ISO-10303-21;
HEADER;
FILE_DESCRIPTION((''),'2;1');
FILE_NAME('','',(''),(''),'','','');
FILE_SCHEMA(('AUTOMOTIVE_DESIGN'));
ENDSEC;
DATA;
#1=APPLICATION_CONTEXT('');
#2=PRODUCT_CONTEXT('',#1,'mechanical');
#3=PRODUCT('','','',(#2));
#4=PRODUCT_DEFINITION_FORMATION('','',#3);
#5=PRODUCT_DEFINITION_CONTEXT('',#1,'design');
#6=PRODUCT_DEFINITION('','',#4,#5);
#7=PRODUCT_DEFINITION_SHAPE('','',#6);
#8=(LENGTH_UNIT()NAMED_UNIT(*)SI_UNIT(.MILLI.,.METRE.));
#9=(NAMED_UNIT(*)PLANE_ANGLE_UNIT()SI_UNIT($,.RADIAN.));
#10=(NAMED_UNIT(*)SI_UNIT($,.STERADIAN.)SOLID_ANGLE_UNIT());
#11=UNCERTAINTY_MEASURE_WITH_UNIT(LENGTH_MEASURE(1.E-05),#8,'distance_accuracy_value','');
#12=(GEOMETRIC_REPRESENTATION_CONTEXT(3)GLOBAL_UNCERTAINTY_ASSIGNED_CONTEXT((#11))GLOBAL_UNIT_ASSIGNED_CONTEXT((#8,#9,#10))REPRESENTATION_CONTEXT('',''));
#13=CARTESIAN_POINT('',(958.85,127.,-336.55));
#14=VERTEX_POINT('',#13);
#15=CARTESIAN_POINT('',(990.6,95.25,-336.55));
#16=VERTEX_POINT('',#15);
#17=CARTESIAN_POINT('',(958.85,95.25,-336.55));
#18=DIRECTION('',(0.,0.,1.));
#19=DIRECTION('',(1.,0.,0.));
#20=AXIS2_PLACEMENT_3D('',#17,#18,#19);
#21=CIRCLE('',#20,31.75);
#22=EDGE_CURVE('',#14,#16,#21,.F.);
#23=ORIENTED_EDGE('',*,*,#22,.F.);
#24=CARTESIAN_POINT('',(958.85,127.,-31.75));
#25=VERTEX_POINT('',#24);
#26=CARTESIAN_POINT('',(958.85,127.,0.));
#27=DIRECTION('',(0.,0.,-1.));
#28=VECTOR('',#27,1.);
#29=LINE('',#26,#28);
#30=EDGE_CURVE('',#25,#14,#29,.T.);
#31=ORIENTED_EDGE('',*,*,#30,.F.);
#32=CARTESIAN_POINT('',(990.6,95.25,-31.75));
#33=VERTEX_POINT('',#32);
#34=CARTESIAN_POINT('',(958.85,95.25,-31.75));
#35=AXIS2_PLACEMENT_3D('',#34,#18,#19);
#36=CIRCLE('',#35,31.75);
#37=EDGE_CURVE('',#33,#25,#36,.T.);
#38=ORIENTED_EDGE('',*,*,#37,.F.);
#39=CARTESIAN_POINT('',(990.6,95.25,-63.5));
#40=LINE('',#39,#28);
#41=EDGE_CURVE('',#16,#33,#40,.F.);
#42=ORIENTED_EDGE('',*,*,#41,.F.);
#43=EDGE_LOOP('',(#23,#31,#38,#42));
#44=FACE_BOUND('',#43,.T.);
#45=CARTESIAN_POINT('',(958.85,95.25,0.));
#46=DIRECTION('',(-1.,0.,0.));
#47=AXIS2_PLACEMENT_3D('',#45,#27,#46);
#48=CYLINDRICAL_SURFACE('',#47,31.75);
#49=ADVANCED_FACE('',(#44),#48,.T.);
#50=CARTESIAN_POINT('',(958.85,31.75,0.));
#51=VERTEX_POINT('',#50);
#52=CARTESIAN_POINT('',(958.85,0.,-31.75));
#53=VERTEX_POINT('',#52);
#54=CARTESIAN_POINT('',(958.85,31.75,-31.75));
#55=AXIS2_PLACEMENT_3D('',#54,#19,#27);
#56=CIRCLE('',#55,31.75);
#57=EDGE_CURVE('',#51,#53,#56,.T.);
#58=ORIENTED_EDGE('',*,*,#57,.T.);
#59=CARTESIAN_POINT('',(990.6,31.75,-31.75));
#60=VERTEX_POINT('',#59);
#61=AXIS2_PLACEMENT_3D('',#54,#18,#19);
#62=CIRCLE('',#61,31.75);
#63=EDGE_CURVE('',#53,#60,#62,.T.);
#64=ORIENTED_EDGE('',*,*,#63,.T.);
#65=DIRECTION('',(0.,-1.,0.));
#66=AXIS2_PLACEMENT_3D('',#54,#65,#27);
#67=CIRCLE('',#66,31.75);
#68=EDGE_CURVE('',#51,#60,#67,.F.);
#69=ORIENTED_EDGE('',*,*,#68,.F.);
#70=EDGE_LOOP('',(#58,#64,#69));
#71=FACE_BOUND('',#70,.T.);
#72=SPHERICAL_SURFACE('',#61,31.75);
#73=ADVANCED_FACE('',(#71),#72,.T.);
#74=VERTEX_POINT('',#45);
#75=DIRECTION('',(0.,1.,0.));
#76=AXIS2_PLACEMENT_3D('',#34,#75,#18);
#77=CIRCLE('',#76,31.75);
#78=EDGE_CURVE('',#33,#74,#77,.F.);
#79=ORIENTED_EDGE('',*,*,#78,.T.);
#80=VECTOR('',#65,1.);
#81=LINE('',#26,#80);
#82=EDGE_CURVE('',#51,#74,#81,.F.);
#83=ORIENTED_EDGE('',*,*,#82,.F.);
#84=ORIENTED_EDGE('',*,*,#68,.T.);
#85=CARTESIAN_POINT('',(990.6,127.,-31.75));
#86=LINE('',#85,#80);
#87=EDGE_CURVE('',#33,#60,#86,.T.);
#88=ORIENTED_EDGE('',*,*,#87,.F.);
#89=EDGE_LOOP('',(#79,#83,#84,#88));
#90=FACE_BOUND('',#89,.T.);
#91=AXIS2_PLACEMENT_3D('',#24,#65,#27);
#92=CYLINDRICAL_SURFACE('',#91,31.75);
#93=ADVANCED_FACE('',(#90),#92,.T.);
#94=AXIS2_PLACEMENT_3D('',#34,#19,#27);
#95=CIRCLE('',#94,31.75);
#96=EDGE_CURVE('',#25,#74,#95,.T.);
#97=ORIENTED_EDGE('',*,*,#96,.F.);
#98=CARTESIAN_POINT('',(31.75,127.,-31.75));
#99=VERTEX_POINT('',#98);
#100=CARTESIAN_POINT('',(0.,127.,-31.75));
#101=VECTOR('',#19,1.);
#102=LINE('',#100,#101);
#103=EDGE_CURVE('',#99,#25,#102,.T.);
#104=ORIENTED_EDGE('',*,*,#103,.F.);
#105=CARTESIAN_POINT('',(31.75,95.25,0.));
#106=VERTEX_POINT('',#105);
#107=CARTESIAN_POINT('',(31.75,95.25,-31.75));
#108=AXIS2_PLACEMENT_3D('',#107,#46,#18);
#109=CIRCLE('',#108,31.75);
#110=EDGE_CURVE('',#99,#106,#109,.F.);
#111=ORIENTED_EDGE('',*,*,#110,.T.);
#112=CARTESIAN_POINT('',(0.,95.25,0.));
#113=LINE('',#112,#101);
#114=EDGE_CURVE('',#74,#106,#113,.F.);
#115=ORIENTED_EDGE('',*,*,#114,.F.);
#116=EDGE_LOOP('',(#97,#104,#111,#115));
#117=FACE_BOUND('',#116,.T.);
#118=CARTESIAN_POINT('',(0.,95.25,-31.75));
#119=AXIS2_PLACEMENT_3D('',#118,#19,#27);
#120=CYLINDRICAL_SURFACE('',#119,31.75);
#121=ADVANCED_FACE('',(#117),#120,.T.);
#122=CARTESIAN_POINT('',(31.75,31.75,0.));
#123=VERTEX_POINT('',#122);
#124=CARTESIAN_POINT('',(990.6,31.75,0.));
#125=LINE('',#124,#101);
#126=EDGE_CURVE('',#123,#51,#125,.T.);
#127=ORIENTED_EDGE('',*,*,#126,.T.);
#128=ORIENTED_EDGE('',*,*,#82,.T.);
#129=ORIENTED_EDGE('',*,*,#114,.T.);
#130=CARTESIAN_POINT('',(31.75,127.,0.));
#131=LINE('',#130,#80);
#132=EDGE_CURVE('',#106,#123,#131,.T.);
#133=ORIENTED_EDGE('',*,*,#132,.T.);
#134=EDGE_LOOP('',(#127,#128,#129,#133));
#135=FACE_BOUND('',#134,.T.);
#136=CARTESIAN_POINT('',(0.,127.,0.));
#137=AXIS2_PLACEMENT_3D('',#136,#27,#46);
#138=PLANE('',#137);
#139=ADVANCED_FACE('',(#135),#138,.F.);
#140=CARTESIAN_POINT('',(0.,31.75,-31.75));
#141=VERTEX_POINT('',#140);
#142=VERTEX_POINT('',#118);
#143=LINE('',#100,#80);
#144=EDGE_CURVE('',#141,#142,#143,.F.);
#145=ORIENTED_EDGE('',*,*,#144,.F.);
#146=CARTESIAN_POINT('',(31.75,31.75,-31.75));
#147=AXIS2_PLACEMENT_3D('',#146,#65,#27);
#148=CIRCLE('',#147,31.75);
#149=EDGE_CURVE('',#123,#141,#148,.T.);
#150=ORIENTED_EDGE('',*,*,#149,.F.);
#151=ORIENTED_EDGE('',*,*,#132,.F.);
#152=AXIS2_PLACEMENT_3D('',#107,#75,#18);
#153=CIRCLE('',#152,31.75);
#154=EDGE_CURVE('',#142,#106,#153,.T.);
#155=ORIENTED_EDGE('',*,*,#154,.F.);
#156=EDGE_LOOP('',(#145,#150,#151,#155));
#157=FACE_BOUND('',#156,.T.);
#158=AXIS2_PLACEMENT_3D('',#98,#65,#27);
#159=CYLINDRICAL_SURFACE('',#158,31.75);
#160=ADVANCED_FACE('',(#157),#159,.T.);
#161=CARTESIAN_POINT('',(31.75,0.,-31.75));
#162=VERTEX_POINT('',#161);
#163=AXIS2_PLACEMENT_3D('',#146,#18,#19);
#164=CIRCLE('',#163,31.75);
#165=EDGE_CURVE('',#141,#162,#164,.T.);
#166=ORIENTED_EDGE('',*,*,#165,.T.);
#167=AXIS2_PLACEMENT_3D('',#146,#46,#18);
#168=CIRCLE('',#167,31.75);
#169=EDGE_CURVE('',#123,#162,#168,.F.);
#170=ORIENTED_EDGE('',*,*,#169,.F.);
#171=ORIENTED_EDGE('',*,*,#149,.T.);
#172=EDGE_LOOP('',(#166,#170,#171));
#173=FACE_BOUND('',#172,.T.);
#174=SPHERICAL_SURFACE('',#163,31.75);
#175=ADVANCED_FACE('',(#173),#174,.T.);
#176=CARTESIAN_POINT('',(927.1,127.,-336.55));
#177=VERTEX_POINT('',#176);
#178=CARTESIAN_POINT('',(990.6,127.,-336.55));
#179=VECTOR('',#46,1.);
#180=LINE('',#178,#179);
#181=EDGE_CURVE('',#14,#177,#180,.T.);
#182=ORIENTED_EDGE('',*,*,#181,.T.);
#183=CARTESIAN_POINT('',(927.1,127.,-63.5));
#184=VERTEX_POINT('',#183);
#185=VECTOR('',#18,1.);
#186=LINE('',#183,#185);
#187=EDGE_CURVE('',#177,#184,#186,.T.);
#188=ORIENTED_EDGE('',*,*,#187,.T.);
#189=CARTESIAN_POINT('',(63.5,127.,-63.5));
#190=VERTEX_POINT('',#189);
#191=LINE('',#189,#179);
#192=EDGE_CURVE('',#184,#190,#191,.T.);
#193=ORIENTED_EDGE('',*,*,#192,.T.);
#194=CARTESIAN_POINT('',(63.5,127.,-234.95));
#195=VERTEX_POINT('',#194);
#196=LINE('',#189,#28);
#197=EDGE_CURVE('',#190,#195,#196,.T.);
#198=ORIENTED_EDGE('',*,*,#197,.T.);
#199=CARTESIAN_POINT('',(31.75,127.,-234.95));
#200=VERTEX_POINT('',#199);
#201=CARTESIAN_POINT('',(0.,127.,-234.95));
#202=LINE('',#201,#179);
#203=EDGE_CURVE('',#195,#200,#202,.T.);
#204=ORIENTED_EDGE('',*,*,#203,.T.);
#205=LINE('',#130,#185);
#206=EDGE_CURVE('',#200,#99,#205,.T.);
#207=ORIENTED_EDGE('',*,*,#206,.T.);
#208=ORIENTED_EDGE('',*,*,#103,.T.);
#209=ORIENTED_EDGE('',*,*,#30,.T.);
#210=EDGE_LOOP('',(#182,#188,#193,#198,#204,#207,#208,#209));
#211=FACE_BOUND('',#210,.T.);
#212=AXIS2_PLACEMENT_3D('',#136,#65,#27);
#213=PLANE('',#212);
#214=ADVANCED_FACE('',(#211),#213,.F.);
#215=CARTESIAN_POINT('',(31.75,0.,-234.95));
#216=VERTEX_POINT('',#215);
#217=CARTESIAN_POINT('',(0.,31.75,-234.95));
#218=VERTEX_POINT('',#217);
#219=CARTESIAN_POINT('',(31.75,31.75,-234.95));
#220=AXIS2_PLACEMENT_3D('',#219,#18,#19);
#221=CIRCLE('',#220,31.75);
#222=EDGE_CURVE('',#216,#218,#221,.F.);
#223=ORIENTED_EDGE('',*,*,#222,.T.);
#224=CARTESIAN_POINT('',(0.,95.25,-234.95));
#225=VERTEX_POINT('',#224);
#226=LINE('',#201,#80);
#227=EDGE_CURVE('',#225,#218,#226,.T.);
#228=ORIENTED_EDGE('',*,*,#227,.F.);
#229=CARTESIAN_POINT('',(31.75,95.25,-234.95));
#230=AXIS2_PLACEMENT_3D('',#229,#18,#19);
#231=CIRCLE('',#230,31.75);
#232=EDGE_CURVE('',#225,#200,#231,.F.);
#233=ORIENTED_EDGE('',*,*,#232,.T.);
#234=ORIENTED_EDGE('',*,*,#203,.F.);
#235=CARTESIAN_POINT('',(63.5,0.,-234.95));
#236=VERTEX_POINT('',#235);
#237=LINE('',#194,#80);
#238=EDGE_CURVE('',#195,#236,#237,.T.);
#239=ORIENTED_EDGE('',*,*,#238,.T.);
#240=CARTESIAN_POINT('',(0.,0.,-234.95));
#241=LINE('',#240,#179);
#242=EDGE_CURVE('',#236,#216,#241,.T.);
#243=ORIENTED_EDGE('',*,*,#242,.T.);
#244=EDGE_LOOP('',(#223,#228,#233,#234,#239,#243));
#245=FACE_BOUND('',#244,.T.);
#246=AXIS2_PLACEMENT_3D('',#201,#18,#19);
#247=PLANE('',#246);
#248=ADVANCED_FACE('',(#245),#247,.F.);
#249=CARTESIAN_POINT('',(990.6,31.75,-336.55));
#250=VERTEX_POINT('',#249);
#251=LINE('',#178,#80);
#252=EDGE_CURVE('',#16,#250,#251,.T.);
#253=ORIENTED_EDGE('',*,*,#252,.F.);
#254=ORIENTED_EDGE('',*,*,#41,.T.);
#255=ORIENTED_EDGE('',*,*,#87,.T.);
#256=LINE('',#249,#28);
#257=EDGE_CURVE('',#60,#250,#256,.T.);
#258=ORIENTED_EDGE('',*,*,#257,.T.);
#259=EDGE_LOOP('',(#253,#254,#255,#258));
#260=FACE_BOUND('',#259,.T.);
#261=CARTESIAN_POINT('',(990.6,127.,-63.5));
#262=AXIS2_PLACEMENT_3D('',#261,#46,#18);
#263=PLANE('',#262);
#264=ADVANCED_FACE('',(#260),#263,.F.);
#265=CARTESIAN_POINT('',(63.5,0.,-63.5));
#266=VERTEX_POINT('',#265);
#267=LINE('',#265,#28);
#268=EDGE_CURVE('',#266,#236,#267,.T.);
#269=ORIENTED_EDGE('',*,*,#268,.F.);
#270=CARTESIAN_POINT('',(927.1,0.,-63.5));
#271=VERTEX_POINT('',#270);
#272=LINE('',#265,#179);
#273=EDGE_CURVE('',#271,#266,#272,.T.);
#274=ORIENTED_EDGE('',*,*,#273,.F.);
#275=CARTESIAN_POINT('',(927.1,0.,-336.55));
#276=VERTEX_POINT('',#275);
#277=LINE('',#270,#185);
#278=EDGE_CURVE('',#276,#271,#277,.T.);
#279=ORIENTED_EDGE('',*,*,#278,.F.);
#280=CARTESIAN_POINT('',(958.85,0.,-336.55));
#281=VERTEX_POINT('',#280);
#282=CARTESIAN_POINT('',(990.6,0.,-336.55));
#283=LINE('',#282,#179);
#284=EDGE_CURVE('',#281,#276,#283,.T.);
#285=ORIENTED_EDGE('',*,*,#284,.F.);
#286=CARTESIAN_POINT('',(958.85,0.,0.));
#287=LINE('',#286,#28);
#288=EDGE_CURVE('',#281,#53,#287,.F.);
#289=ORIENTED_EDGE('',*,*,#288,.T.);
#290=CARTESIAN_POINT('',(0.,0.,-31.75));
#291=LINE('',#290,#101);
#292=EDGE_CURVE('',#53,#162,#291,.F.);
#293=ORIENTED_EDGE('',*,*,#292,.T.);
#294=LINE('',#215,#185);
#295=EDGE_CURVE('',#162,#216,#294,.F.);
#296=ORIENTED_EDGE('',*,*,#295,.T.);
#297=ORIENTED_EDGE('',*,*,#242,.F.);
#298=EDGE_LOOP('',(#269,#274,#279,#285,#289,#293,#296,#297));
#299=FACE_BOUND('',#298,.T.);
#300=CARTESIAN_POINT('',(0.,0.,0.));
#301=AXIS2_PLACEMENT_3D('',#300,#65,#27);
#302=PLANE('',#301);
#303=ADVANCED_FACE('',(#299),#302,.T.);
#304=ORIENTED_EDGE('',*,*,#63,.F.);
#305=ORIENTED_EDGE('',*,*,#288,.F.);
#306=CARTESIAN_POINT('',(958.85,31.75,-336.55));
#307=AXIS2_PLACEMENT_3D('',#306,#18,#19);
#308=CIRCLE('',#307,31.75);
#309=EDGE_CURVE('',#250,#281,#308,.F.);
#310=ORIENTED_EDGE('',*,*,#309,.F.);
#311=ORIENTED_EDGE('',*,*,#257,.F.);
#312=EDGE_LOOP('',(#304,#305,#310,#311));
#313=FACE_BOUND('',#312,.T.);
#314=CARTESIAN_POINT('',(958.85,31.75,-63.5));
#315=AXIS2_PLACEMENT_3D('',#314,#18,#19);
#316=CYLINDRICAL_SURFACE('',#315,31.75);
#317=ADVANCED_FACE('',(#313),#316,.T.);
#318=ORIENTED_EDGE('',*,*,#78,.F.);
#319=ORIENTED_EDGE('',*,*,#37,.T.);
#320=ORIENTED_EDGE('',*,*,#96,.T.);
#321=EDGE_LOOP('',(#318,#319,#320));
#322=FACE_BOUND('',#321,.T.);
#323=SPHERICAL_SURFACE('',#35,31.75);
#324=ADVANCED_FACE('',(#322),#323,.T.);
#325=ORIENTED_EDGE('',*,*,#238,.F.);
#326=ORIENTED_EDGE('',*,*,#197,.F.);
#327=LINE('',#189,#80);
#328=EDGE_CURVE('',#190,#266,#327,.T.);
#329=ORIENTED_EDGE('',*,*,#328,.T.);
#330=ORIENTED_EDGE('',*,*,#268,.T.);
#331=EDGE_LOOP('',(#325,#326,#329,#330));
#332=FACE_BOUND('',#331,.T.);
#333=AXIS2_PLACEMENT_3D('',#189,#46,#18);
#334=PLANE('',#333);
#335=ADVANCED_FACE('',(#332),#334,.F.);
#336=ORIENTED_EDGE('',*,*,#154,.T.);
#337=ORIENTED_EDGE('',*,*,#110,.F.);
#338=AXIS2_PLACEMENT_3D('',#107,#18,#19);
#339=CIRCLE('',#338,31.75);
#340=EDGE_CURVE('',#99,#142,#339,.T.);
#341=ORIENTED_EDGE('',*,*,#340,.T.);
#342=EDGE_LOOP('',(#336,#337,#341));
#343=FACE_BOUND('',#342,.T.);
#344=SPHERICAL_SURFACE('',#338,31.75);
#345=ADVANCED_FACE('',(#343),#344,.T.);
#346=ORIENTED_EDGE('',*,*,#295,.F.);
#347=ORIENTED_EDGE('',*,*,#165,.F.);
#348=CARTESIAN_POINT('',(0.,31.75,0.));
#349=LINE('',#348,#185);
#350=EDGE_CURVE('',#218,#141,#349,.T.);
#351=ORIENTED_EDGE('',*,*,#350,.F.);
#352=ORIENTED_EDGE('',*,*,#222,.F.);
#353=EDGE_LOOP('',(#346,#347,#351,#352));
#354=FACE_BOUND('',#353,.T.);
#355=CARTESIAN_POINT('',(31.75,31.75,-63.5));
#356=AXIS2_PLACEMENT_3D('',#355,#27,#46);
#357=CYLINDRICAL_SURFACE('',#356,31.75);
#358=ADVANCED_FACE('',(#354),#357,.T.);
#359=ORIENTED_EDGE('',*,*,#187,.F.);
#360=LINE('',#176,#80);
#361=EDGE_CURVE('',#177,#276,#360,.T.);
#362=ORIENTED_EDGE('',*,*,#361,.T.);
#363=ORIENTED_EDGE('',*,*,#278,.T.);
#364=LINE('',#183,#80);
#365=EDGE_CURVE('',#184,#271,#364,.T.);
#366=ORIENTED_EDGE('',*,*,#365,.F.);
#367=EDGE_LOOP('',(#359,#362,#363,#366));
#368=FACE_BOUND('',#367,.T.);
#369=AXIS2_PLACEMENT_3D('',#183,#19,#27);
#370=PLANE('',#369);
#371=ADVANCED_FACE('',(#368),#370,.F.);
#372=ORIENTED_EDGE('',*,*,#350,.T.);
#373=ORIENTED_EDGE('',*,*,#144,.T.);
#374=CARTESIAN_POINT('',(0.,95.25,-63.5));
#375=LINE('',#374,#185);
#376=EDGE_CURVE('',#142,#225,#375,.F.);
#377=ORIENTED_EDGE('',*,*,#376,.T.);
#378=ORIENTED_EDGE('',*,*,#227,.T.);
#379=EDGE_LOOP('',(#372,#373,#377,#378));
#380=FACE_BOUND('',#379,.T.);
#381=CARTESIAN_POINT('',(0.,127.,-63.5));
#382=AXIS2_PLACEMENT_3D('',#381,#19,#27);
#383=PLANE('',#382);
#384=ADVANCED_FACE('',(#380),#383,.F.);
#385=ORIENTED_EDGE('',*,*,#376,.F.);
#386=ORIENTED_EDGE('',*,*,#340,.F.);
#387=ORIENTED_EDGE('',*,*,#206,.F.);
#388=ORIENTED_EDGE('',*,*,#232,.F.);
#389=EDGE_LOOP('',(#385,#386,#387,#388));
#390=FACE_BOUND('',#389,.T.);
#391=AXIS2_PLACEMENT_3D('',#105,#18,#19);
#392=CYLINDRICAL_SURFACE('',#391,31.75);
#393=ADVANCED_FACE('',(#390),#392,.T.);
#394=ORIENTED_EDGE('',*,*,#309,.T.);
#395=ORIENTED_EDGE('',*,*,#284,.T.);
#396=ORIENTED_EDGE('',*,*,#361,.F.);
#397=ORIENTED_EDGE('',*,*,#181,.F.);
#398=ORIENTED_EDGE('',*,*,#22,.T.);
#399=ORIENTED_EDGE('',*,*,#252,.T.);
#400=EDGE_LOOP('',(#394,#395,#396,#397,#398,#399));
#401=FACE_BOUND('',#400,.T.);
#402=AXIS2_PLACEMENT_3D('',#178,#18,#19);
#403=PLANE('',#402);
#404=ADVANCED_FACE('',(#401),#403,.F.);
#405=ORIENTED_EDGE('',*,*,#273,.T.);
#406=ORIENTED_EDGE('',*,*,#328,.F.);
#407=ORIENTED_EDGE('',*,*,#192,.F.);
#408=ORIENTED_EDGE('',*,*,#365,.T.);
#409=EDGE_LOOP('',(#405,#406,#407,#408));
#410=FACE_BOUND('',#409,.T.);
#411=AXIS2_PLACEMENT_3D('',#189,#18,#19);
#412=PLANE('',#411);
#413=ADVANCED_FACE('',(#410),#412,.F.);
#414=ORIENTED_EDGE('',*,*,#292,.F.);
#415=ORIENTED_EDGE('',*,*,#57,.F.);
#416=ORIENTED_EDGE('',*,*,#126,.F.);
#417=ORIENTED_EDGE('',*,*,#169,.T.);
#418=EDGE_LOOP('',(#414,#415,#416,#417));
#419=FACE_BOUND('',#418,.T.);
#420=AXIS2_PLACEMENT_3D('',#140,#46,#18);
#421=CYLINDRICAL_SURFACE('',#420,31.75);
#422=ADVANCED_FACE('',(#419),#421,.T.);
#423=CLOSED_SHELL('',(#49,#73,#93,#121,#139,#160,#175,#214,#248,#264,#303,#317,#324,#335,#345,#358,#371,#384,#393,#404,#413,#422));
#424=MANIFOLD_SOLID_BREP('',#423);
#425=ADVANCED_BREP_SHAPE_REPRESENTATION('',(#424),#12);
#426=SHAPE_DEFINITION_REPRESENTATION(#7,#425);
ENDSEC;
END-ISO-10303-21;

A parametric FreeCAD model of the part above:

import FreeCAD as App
import Part
import Sketcher
Q = App.Units.Quantity


def edges_at(feature, points):
    """Names of the edges that pass closest to the given points."""
    edges = feature.Shape.Edges
    near = lambda p: min(range(len(edges)), key=lambda i: edges[i].distToShape(Part.Vertex(*p))[0])
    return sorted({f"Edge{near(p) + 1}" for p in points})

doc = App.newDocument("Part")
params = doc.addObject("Spreadsheet::Sheet", "Params")
for row, (alias, value) in enumerate([
    ("sketch1_width", "34 in"),
    ("sketch1_width2", "39 in"),
    ("sketch1_height", "6.75 in"),
    ("sketch1_height2", "9.25 in"),
    ("pad1_length", "5 in"),
    ("fillet_radius", "1.25 in"),
], start=1):
    params.set(f"A{row}", alias)
    params.set(f"B{row}", "=" + value)
    params.setAlias(f"B{row}", alias)

body = doc.addObject("PartDesign::Body", "Body")

sketch1 = body.newObject("Sketcher::SketchObject", "Sketch")
sketch1.AttachmentSupport = (doc.getObject("XZ_Plane"), [""])
sketch1.MapMode = "FlatFace"
sketch1.addGeometry(Part.LineSegment(App.Vector(927, -64, 0), App.Vector(64, -64, 0)), False)
sketch1.addGeometry(Part.LineSegment(App.Vector(64, -64, 0), App.Vector(64, -235, 0)), False)
sketch1.addGeometry(Part.LineSegment(App.Vector(64, -235, 0), App.Vector(0, -235, 0)), False)
sketch1.addGeometry(Part.LineSegment(App.Vector(0, -235, 0), App.Vector(0, 0, 0)), False)
sketch1.addGeometry(Part.LineSegment(App.Vector(0, 0, 0), App.Vector(991, 0, 0)), False)
sketch1.addGeometry(Part.LineSegment(App.Vector(991, 0, 0), App.Vector(991, -337, 0)), False)
sketch1.addGeometry(Part.LineSegment(App.Vector(991, -337, 0), App.Vector(927, -337, 0)), False)
sketch1.addGeometry(Part.LineSegment(App.Vector(927, -337, 0), App.Vector(927, -64, 0)), False)
sketch1.addConstraint(Sketcher.Constraint("Coincident", 0, 2, 1, 1))
sketch1.addConstraint(Sketcher.Constraint("Coincident", 1, 2, 2, 1))
sketch1.addConstraint(Sketcher.Constraint("Coincident", 2, 2, 3, 1))
sketch1.addConstraint(Sketcher.Constraint("Coincident", 3, 2, 4, 1))
sketch1.addConstraint(Sketcher.Constraint("Coincident", 4, 2, 5, 1))
sketch1.addConstraint(Sketcher.Constraint("Coincident", 5, 2, 6, 1))
sketch1.addConstraint(Sketcher.Constraint("Coincident", 6, 2, 7, 1))
sketch1.addConstraint(Sketcher.Constraint("Coincident", 7, 2, 0, 1))
sketch1.addConstraint(Sketcher.Constraint("Horizontal", 0))
sketch1.addConstraint(Sketcher.Constraint("Vertical", 1))
sketch1.addConstraint(Sketcher.Constraint("Horizontal", 2))
sketch1.addConstraint(Sketcher.Constraint("Vertical", 3))
sketch1.addConstraint(Sketcher.Constraint("Horizontal", 4))
sketch1.addConstraint(Sketcher.Constraint("Vertical", 5))
sketch1.addConstraint(Sketcher.Constraint("Horizontal", 6))
sketch1.addConstraint(Sketcher.Constraint("Vertical", 7))
sketch1.addConstraint(Sketcher.Constraint("Coincident", 3, 2, -1, 1))
sketch1.addConstraint(Sketcher.Constraint("Equal", 2, 6))
sketch1.addConstraint(Sketcher.Constraint("DistanceX", 0, 2, 0, 1, Q("34 in")))
sketch1.addConstraint(Sketcher.Constraint("DistanceX", 4, 1, 4, 2, Q("39 in")))
sketch1.addConstraint(Sketcher.Constraint("DistanceY", 5, 2, 1, 2, Q("4 in")))
sketch1.addConstraint(Sketcher.Constraint("DistanceY", 1, 2, 1, 1, Q("6.75 in")))
sketch1.addConstraint(Sketcher.Constraint("DistanceY", 3, 1, 3, 2, Q("9.25 in")))
sketch1.setExpression("Constraints[18]", "Params.sketch1_width")
sketch1.setExpression("Constraints[19]", "Params.sketch1_width2")
sketch1.setExpression("Constraints[21]", "Params.sketch1_height")
sketch1.setExpression("Constraints[22]", "Params.sketch1_height2")
pad1 = body.newObject("PartDesign::Pad", "Pad")
pad1.Profile = sketch1
pad1.setExpression("Length", "Params.pad1_length")
pad1.Reversed = True
doc.recompute()

fillet = body.newObject("PartDesign::Fillet", "Fillet")
fillet.Base = (pad1, edges_at(pad1, [
    (495.3, 127, 0),
    (990.6, 0, -168.275),
    (495.3, 0, 0),
    (0, 0, -117.475),
    (990.6, 127, -168.275),
    (990.6, 63.5, 0),
    (0, 63.5, 0),
    (0, 127, -117.475),
]))
fillet.setExpression("Radius", "Params.fillet_radius")

doc.recompute()
